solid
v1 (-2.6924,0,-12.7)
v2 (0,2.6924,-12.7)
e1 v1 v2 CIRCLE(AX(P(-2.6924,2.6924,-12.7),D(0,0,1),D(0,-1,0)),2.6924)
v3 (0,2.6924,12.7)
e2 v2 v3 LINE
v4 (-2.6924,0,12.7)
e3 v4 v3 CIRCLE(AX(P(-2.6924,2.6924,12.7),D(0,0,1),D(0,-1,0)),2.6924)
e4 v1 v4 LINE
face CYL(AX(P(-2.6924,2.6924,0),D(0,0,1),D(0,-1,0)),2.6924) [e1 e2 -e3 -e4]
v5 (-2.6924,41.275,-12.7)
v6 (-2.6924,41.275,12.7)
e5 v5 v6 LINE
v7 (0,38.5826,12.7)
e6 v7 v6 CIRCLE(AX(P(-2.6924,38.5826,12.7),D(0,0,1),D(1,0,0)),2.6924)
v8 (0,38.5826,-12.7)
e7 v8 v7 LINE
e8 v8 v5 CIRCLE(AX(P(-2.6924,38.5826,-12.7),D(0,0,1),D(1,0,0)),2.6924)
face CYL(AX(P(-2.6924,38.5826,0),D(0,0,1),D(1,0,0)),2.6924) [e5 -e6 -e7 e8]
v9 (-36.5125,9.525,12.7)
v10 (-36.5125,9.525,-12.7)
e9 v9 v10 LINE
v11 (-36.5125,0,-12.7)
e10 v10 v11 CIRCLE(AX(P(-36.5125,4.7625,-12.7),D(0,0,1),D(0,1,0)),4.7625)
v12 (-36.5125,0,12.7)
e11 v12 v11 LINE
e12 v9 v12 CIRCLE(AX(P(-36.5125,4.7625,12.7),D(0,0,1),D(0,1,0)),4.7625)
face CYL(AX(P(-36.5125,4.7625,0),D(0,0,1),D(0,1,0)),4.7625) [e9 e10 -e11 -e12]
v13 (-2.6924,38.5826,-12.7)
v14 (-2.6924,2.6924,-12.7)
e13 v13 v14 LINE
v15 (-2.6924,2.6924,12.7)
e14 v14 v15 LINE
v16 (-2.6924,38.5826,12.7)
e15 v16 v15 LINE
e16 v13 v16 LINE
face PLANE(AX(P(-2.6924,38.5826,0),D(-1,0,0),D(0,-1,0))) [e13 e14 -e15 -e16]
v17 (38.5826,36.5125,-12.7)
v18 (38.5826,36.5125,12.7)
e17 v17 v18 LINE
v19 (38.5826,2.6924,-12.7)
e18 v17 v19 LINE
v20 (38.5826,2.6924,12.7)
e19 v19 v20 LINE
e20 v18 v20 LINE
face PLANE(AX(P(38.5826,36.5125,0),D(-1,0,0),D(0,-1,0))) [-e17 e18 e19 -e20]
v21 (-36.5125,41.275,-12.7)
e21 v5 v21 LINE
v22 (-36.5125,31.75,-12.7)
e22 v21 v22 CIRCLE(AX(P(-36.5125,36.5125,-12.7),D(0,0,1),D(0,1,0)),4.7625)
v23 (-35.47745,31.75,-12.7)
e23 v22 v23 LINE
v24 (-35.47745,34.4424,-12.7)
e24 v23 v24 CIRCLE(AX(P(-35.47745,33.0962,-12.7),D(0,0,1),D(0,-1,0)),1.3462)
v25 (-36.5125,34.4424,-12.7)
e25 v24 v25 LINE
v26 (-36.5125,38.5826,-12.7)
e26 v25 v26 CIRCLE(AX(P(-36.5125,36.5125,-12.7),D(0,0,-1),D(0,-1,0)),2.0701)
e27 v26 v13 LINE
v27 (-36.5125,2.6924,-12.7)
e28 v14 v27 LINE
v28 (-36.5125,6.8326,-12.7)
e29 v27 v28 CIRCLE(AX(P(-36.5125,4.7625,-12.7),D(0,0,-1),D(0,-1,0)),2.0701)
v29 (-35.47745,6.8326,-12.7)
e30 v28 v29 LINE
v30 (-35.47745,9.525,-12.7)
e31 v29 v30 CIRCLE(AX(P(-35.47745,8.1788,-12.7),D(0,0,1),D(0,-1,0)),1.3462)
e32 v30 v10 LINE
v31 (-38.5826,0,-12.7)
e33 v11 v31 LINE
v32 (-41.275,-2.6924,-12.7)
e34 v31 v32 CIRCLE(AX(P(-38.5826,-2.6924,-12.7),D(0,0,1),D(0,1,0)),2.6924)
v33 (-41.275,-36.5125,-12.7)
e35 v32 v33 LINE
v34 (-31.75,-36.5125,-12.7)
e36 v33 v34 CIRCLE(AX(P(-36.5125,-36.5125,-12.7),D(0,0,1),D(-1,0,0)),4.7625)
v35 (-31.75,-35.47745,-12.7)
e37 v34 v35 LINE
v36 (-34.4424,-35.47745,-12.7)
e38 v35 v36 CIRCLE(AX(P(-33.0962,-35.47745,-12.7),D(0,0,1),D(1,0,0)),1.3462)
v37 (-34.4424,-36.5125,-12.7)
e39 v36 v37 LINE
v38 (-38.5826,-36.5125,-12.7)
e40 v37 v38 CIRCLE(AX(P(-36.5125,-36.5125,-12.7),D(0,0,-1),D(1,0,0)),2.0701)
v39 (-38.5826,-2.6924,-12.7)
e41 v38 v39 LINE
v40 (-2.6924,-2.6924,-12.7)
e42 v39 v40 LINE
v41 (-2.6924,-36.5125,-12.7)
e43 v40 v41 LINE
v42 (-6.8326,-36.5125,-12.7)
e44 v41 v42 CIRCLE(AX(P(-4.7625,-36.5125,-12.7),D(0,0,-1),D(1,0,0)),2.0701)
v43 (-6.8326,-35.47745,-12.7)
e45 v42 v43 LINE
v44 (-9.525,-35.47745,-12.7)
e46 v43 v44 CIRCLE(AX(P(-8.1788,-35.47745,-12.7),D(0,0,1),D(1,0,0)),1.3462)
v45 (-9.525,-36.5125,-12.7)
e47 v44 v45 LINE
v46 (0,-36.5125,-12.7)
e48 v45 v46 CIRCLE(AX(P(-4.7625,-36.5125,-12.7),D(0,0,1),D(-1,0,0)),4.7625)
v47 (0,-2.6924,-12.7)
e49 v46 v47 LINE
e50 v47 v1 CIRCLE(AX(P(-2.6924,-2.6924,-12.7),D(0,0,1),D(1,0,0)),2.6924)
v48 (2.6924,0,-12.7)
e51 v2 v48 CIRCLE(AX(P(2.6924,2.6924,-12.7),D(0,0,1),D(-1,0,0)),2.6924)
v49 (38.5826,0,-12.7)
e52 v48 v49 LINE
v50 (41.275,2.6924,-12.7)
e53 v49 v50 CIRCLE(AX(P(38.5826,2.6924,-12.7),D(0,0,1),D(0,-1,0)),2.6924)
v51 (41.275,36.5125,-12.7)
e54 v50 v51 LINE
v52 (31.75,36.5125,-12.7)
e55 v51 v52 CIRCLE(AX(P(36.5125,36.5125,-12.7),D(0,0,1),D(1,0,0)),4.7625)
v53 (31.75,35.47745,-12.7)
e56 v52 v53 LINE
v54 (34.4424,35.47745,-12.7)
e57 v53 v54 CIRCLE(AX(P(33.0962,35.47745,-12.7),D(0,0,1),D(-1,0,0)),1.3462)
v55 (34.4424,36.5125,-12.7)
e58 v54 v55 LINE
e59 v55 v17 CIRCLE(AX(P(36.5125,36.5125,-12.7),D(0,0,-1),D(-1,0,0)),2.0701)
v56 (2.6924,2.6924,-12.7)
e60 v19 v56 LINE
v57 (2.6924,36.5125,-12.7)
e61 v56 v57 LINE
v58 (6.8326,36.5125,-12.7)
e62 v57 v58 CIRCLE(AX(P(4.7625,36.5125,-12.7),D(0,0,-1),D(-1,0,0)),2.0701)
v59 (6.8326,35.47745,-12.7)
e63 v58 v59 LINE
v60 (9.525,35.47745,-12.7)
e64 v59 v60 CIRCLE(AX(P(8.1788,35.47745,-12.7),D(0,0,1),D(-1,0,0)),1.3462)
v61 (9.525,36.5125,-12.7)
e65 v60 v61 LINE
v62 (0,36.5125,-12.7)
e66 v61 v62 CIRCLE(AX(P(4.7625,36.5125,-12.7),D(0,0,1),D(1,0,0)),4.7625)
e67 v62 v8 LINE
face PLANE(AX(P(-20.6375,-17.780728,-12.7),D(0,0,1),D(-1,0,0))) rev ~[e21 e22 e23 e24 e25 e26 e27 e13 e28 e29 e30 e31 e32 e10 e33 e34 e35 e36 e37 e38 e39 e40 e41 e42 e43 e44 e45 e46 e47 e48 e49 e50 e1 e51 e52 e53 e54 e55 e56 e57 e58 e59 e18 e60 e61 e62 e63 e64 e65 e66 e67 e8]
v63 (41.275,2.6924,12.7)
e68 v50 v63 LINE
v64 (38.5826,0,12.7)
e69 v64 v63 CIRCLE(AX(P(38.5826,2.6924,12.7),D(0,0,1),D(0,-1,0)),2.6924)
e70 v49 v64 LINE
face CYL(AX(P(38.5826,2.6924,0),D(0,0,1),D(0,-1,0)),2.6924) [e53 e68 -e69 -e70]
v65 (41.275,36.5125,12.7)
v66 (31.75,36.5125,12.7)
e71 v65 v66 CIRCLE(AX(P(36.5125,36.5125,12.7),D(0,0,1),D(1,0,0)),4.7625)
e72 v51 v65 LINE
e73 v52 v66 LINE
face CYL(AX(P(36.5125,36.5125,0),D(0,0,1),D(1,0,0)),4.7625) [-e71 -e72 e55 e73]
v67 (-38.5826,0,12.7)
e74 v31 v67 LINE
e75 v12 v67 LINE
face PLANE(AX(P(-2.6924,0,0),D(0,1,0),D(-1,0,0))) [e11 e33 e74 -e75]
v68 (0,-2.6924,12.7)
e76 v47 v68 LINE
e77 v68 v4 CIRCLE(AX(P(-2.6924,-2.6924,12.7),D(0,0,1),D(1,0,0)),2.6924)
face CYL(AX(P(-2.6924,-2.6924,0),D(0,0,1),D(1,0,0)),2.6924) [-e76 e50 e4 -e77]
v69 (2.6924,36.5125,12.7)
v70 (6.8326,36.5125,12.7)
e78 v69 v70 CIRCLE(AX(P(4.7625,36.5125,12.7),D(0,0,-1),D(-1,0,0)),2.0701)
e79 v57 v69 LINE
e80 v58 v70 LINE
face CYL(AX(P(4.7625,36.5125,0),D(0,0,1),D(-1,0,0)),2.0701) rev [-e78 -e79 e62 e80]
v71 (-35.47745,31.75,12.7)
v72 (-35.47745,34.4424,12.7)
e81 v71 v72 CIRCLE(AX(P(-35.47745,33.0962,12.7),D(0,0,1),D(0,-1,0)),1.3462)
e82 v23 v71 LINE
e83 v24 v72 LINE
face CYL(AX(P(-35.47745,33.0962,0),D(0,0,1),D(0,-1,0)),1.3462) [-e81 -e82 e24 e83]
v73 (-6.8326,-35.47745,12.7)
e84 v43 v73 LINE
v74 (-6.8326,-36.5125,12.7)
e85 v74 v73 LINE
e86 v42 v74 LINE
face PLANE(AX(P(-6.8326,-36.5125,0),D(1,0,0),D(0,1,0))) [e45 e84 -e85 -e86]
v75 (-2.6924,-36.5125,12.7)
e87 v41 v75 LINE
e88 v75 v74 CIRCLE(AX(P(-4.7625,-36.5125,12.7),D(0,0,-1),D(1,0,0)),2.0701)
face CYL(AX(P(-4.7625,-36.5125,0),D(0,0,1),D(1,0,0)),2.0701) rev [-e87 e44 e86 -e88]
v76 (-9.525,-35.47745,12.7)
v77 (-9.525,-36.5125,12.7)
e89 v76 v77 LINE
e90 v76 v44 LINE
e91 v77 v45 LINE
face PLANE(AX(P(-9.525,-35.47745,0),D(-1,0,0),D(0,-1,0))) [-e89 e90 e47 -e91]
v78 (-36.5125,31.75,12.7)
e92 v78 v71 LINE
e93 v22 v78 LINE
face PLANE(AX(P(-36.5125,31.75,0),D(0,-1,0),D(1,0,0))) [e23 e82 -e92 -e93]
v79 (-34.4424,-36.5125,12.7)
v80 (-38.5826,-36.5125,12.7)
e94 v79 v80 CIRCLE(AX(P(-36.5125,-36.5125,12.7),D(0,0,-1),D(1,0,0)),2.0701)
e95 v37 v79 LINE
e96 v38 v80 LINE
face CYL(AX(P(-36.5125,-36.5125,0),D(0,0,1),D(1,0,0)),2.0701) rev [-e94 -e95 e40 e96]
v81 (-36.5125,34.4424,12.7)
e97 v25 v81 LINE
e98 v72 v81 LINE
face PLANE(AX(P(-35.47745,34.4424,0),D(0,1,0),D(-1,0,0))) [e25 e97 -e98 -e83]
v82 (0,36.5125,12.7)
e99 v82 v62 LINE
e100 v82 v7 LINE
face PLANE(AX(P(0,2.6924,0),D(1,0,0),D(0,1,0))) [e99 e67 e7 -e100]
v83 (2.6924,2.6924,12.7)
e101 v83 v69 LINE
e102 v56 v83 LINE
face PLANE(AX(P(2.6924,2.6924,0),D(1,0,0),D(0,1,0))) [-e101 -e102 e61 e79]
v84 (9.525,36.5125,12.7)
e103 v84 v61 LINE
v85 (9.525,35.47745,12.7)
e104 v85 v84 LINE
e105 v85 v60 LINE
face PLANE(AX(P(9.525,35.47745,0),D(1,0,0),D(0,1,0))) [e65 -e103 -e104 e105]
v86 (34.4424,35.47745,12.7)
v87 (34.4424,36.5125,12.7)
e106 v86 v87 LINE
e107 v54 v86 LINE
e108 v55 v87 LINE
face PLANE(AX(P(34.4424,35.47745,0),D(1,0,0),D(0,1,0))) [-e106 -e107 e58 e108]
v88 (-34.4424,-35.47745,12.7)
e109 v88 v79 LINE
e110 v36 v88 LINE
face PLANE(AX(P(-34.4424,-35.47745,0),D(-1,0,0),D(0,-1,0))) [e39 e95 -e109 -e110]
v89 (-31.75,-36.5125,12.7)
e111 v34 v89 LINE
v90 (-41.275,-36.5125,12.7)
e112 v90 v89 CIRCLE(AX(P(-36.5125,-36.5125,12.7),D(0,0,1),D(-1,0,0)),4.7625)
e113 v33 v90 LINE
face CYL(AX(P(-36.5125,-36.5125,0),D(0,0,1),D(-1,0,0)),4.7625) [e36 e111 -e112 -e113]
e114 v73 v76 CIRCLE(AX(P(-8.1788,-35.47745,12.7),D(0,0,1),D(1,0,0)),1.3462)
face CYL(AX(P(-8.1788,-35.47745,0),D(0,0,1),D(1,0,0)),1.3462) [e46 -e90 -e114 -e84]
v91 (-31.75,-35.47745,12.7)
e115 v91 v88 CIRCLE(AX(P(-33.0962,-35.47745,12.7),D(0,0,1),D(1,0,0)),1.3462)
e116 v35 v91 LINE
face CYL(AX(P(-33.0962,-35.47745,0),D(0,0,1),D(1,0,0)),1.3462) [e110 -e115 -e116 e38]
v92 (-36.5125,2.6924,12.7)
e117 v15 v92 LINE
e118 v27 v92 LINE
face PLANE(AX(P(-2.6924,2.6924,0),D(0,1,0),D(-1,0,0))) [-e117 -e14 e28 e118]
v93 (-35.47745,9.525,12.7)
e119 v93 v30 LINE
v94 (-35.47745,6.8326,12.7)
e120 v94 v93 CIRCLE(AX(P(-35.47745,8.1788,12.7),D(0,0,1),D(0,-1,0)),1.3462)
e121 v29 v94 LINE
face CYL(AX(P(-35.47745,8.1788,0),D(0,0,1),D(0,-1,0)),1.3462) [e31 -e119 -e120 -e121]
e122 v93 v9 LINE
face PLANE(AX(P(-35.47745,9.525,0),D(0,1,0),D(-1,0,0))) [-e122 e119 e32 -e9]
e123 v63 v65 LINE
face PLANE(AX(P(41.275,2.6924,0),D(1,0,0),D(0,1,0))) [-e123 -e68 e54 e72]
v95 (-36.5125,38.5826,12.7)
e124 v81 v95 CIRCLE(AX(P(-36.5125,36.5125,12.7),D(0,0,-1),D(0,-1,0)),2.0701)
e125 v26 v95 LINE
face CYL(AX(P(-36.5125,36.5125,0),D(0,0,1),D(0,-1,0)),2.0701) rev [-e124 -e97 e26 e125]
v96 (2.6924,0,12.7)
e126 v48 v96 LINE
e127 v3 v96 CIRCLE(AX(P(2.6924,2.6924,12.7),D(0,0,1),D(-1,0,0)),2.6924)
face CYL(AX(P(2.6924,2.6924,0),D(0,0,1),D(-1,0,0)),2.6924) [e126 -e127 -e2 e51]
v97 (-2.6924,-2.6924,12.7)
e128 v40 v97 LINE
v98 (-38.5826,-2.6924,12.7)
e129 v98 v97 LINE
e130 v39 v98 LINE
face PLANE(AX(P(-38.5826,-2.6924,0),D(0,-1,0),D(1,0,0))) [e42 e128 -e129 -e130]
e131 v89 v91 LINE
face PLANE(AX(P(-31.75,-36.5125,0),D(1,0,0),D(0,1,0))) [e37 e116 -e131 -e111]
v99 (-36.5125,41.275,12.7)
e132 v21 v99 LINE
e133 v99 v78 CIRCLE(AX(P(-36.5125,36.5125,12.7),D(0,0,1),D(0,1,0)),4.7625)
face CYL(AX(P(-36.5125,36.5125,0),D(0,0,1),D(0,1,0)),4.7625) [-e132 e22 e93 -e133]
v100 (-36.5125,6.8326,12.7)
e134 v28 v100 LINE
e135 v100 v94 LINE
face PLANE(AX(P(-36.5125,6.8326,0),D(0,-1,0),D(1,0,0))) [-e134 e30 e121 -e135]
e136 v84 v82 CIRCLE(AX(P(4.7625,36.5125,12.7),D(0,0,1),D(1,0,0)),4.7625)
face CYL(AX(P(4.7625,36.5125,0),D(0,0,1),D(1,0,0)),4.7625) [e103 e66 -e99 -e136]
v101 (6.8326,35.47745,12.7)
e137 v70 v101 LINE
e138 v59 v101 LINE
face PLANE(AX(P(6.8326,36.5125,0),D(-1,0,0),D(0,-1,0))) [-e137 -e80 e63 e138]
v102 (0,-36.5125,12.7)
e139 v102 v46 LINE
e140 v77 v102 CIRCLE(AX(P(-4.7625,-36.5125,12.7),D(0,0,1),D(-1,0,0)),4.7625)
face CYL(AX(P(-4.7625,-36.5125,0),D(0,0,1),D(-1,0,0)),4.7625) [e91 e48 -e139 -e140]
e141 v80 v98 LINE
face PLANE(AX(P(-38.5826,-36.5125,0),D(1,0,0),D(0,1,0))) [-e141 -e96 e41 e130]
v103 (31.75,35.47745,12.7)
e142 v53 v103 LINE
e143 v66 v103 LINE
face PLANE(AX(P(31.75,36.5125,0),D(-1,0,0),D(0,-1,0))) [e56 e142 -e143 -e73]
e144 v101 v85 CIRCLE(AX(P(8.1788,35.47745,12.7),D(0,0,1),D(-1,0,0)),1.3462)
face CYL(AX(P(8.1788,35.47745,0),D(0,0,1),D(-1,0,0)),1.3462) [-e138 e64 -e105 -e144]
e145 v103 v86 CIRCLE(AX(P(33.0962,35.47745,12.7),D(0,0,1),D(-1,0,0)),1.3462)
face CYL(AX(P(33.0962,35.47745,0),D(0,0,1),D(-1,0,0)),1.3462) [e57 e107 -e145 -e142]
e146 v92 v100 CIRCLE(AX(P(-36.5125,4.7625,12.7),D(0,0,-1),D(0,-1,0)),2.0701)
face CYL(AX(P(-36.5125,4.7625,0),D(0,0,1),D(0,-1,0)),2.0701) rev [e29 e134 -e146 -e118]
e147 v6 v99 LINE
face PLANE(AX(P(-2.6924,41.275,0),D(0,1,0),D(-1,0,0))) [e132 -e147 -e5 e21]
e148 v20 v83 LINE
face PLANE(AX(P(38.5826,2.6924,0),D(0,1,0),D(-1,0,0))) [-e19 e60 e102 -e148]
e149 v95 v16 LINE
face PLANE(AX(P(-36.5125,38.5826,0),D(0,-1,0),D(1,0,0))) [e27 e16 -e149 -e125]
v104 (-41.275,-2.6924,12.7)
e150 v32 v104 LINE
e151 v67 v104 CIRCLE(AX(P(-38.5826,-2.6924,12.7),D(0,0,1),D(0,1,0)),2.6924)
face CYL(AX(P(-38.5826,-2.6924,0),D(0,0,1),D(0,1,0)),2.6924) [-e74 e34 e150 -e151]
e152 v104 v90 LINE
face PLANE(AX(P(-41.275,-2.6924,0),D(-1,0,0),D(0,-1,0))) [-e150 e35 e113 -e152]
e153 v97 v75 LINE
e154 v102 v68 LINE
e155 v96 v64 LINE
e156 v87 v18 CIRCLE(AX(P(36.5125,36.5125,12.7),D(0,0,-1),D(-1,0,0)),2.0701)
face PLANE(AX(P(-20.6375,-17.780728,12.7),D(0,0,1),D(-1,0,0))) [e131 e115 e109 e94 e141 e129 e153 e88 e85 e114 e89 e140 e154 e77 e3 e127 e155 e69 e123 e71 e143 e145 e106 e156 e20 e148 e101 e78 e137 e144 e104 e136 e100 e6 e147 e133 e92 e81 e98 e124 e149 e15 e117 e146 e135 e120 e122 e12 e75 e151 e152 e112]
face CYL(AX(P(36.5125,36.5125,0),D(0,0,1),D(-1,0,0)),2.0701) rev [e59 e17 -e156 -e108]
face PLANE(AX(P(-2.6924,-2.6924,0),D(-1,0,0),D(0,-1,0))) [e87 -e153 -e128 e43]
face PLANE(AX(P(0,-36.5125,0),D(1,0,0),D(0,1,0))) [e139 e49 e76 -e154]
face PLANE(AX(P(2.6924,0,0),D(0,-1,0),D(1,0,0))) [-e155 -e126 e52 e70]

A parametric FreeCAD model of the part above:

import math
import FreeCAD as App
import Part
import Sketcher
from FreeCAD import Vector
Q = App.Units.Quantity

doc = App.newDocument("Part")
params = doc.addObject("Spreadsheet::Sheet", "Params")
for row, (alias, value) in enumerate([
    ("sketch1_radius", "0.106 in"),
    ("sketch1_radius2", "0.1875 in"),
    ("sketch1_width", "1.413 in"),
    ("pad1_length", "1 in"),
], start=1):
    params.set(f"A{row}", alias)
    params.set(f"B{row}", "=" + value)
    params.setAlias(f"B{row}", alias)

body = doc.addObject("PartDesign::Body", "Body")

sketch1 = doc.addObject("Sketcher::SketchObject", "Sketch")
body.addObject(sketch1)
sketch1.AttachmentSupport = (doc.XY_Plane, [""])
sketch1.MapMode = "FlatFace"
sketch1.addGeometry([
    Part.LineSegment(Vector(0, 36.5, 0), Vector(0, 2.7, 0)),
    Part.ArcOfCircle(Part.Circle(Vector(2.7, 2.7, 0), Vector(0, 0, 1), 2.7), math.radians(180), math.radians(270)),
    Part.LineSegment(Vector(2.7, 0, 0), Vector(38.6, 0, 0)),
    Part.ArcOfCircle(Part.Circle(Vector(38.6, 2.7, 0), Vector(0, 0, 1), 2.7), math.radians(-90), math.radians(0)),
    Part.LineSegment(Vector(41.3, 2.7, 0), Vector(41.3, 36.5, 0)),
    Part.ArcOfCircle(Part.Circle(Vector(36.5, 36.5, 0), Vector(0, 0, 1), 4.8), math.radians(0), math.radians(180)),
    Part.LineSegment(Vector(31.8, 36.5, 0), Vector(31.8, 35.5, 0)),
    Part.ArcOfCircle(Part.Circle(Vector(33.1, 35.5, 0), Vector(0, 0, 1), 1.3), math.radians(180), math.radians(360)),
    Part.LineSegment(Vector(34.4, 35.5, 0), Vector(34.4, 36.5, 0)),
    Part.ArcOfCircle(Part.Circle(Vector(36.5, 36.5, 0), Vector(0, 0, 1), 2.1), math.radians(0), math.radians(180)),
    Part.LineSegment(Vector(38.6, 36.5, 0), Vector(38.6, 2.7, 0)),
    Part.LineSegment(Vector(38.6, 2.7, 0), Vector(2.7, 2.7, 0)),
    Part.LineSegment(Vector(2.7, 2.7, 0), Vector(2.7, 36.5, 0)),
    Part.ArcOfCircle(Part.Circle(Vector(4.8, 36.5, 0), Vector(0, 0, 1), 2.1), math.radians(0), math.radians(180)),
    Part.LineSegment(Vector(6.8, 36.5, 0), Vector(6.8, 35.5, 0)),
    Part.ArcOfCircle(Part.Circle(Vector(8.2, 35.5, 0), Vector(0, 0, 1), 1.3), math.radians(180), math.radians(360)),
    Part.LineSegment(Vector(9.5, 35.5, 0), Vector(9.5, 36.5, 0)),
    Part.ArcOfCircle(Part.Circle(Vector(4.8, 36.5, 0), Vector(0, 0, 1), 4.8), math.radians(0), math.radians(180)),
], False)
sketch1.addConstraint([
    Sketcher.Constraint("Tangent", 0, 2, 1, 1),
    Sketcher.Constraint("Tangent", 1, 2, 2, 1),
    Sketcher.Constraint("Tangent", 2, 2, 3, 1),
    Sketcher.Constraint("Tangent", 3, 2, 4, 1),
    Sketcher.Constraint("Tangent", 4, 2, 5, 1),
    Sketcher.Constraint("Tangent", 5, 2, 6, 1),
    Sketcher.Constraint("Tangent", 6, 2, 7, 1),
    Sketcher.Constraint("Tangent", 7, 2, 8, 1),
    Sketcher.Constraint("Tangent", 8, 2, 9, 2),
    Sketcher.Constraint("Tangent", 9, 1, 10, 1),
    Sketcher.Constraint("Coincident", 10, 2, 11, 1),
    Sketcher.Constraint("Coincident", 11, 2, 12, 1),
    Sketcher.Constraint("Tangent", 12, 2, 13, 2),
    Sketcher.Constraint("Tangent", 13, 1, 14, 1),
    Sketcher.Constraint("Tangent", 14, 2, 15, 1),
    Sketcher.Constraint("Tangent", 15, 2, 16, 1),
    Sketcher.Constraint("Tangent", 16, 2, 17, 1),
    Sketcher.Constraint("Tangent", 17, 2, 0, 1),
    Sketcher.Constraint("Vertical", 0),
    Sketcher.Constraint("Horizontal", 2),
    Sketcher.Constraint("Vertical", 4),
    Sketcher.Constraint("Vertical", 6),
    Sketcher.Constraint("Vertical", 8),
    Sketcher.Constraint("Vertical", 10),
    Sketcher.Constraint("Horizontal", 11),
    Sketcher.Constraint("Vertical", 12),
    Sketcher.Constraint("Vertical", 14),
    Sketcher.Constraint("Vertical", 16),
    Sketcher.Constraint("Coincident", 9, 3, 5, 3),
    Sketcher.Constraint("Coincident", 17, 3, 13, 3),
    Sketcher.Constraint("Coincident", 10, 2, 3, 3),
    Sketcher.Constraint("Coincident", 11, 2, 1, 3),
    Sketcher.Constraint("Equal", 9, 13),
    Sketcher.Constraint("PointOnObject", 0, 2, -2),
    Sketcher.Constraint("PointOnObject", 1, 2, -1),
    Sketcher.Constraint("Horizontal", 9, 3, 13, 3),
    Sketcher.Constraint("Horizontal", 7, 3, 15, 3),
    Sketcher.Constraint("Radius", 1, Q("0.106 in")),
    Sketcher.Constraint("Radius", 5, Q("0.1875 in")),
    Sketcher.Constraint("DistanceX", 2, 1, 2, 2, Q("1.413 in")),
    Sketcher.Constraint("DistanceY", 0, 2, 0, 1, Q("1.3315 in")),
    Sketcher.Constraint("DistanceY", 6, 2, 6, 1, Q("1.03505 mm")),
])
sketch1.setExpression("Constraints[37]", "Params.sketch1_radius")
sketch1.setExpression("Constraints[38]", "Params.sketch1_radius2")
sketch1.setExpression("Constraints[39]", "Params.sketch1_width")
pad1 = doc.addObject("PartDesign::Pad", "Pad")
body.addObject(pad1)
pad1.Profile = sketch1
pad1.setExpression("Length", "Params.pad1_length")
pad1.Midplane = True
doc.recompute()

polarpattern = doc.addObject("PartDesign::PolarPattern", "PolarPattern")
body.addObject(polarpattern)
polarpattern.Originals = [pad1]
polarpattern.Axis = (doc.Z_Axis, [""])
polarpattern.Angle = 180
polarpattern.Occurrences = 3
body.Tip = polarpattern

doc.recompute()
